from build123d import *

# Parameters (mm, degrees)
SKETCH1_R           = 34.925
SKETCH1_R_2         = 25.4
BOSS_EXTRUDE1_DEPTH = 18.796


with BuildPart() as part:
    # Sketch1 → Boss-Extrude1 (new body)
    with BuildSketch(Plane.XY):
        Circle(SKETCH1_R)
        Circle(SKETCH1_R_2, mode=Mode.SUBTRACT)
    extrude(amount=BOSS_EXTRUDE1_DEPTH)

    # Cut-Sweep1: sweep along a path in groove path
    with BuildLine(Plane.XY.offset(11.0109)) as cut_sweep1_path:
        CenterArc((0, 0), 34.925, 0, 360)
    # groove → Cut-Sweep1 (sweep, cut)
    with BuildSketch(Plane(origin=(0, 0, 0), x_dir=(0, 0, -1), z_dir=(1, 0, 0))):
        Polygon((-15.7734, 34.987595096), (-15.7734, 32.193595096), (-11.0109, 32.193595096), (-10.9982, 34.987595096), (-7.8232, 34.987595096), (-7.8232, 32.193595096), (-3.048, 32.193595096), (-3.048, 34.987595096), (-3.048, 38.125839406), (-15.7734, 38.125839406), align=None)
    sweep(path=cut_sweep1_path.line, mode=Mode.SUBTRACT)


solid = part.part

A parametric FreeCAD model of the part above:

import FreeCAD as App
import Part
import Sketcher
Q = App.Units.Quantity


def add_polygon(sketch, points):
    """Adds a closed chain of lines whose ends are joined by coincident constraints."""
    first, n = sketch.GeometryCount, len(points)
    for a, b in zip(points, points[1:] + points[:1]):
        sketch.addGeometry(Part.LineSegment(App.Vector(*a, 0), App.Vector(*b, 0)), False)
    for i in range(n):
        sketch.addConstraint(Sketcher.Constraint("Coincident", first + i, 2, first + (i + 1) % n, 1))

doc = App.newDocument("Part")
body = doc.addObject("PartDesign::Body", "Body")

# Sketch on XY plane
sketch1 = body.newObject("Sketcher::SketchObject", "Sketch")
sketch1.AttachmentSupport = (doc.getObject("XY_Plane"), [""])
sketch1.MapMode = "FlatFace"
sketch1.addGeometry([
    Part.Circle(App.Vector(0, 0, 0), App.Vector(0, 0, 1), 35),
    Part.Circle(App.Vector(0, 0, 0), App.Vector(0, 0, 1), 25),
], False)
sketch1.addConstraint([
    Sketcher.Constraint("Coincident", 0, 3, -1, 1),
    Sketcher.Constraint("Coincident", 1, 3, -1, 1),
    Sketcher.Constraint("Diameter", 1, Q("2 in")),
    Sketcher.Constraint("Diameter", 0, Q("2.75 in")),
])
pad1 = body.newObject("PartDesign::Pad", "Pad")
pad1.Profile = sketch1
pad1.Length = Q("0.74 in")

# Sketch on YZ plane
sketch2 = body.newObject("Sketcher::SketchObject", "Sketch001")
sketch2.AttachmentSupport = (doc.getObject("YZ_Plane"), [""])
sketch2.MapMode = "FlatFace"
add_polygon(sketch2, [(32.2, 15.8), (32.2, 11), (35, 11), (35, 7.8), (32.2, 7.8), (32.2, 3), (38.1, 3), (38.1, 15.8)])  # lines 0-7
sketch2.addConstraint([
    Sketcher.Constraint("Vertical", 0),
    Sketcher.Constraint("Vertical", 2),
    Sketcher.Constraint("Horizontal", 3),
    Sketcher.Constraint("Vertical", 4),
    Sketcher.Constraint("Horizontal", 5),
    Sketcher.Constraint("Vertical", 6),
    Sketcher.Constraint("Horizontal", 7),
    Sketcher.Constraint("Vertical", 0, 2, 3, 2),
    Sketcher.Constraint("DistanceX", 3, 2, 3, 1, Q("0.11 in")),
    Sketcher.Constraint("DistanceY", 0, 2, 0, 1, Q("0.1875 in")),
    Sketcher.Constraint("DistanceY", 2, 2, 2, 1, Q("0.125 in")),
    Sketcher.Constraint("DistanceY", 4, 2, 4, 1, Q("0.188 in")),
    Sketcher.Constraint("DistanceY", 6, 1, 6, 2, Q("0.501 in")),
    Sketcher.Constraint("DistanceY", -1, 1, 4, 2, Q("0.12 in")),
    Sketcher.Constraint("DistanceX", 5, 1, 5, 2, 5.932244),
    Sketcher.Constraint("DistanceX", -1, 1, 5, 2, 38.125839),
])

# Sketch on XY plane
sketch3 = body.newObject("Sketcher::SketchObject", "Sketch002")
sketch3.AttachmentSupport = (doc.getObject("XY_Plane"), [""])
sketch3.MapMode = "FlatFace"
sketch3.AttachmentOffset = App.Placement(App.Vector(0, 0, 0.4335 * 25.4), App.Rotation())
sketch3.addGeometry(Part.Circle(App.Vector(0, 0, 0), App.Vector(0, 0, 1), 35), False)
sketch3.addConstraint([
    Sketcher.Constraint("Coincident", 0, 3, -1, 1),
    Sketcher.Constraint("Diameter", 0, Q("2.75 in")),
])
doc.recompute()

subtractivepipe = body.newObject("PartDesign::SubtractivePipe", "SubtractivePipe")
subtractivepipe.Profile = sketch2
subtractivepipe.Spine = (sketch3, ["Edge1"])

doc.recompute()
